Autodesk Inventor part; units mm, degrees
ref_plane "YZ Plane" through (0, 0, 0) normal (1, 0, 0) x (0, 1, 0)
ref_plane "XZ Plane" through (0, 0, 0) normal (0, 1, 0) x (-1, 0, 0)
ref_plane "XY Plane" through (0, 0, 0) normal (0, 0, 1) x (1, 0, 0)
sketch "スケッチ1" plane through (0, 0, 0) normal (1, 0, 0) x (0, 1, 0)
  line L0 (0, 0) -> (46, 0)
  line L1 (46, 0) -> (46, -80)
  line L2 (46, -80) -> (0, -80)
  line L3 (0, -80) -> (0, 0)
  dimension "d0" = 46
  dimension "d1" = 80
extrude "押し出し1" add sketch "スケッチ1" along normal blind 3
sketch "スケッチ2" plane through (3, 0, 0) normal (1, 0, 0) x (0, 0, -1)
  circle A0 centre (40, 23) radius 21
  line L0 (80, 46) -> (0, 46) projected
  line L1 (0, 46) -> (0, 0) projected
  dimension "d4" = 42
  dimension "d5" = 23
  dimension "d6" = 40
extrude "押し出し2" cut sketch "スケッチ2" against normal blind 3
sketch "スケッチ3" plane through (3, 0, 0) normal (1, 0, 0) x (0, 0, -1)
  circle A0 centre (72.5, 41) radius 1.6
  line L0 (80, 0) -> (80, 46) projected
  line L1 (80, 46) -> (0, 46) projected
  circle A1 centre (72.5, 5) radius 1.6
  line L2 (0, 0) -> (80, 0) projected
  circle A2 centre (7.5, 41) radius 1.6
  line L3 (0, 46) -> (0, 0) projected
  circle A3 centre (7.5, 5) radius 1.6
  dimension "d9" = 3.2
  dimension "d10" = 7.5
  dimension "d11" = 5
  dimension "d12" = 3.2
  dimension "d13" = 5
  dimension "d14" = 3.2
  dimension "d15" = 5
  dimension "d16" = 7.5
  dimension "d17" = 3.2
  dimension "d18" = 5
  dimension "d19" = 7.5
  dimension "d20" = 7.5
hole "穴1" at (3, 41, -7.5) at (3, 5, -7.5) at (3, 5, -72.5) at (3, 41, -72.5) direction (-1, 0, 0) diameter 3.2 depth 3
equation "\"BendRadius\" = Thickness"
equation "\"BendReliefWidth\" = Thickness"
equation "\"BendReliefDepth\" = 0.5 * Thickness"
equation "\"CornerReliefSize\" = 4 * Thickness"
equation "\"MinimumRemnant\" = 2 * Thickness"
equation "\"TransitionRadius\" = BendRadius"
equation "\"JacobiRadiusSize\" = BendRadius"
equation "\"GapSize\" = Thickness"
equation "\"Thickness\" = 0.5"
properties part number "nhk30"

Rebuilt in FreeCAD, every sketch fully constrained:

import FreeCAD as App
import Part
import Sketcher

V = App.Vector

doc = App.newDocument("Part")
body = doc.addObject("PartDesign::Body", "Body")

sketch1 = body.newObject("Sketcher::SketchObject", "Sketch")
sketch1.AttachmentSupport = (doc.getObject("YZ_Plane"), [""])
sketch1.MapMode = "FlatFace"
sketch1.addGeometry([
    Part.LineSegment(V(46, 0, 0), V(0, 0, 0)),
    Part.LineSegment(V(0, 0, 0), V(0, -80, 0)),
    Part.LineSegment(V(0, -80, 0), V(46, -80, 0)),
    Part.LineSegment(V(46, -80, 0), V(46, 0, 0)),
], False)
sketch1.addConstraint([
    Sketcher.Constraint("Coincident", 0, 2, 1, 1),
    Sketcher.Constraint("Coincident", 1, 2, 2, 1),
    Sketcher.Constraint("Coincident", 2, 2, 3, 1),
    Sketcher.Constraint("Coincident", 3, 2, 0, 1),
    Sketcher.Constraint("Horizontal", 0),
    Sketcher.Constraint("Vertical", 1),
    Sketcher.Constraint("Horizontal", 2),
    Sketcher.Constraint("Vertical", 3),
    Sketcher.Constraint("Coincident", 0, 2, -1, 1),
    Sketcher.Constraint("DistanceX", 0, 2, 0, 1, 46.0),
    Sketcher.Constraint("DistanceY", 1, 2, 1, 1, 80.0),
])
pad1 = body.newObject("PartDesign::Pad", "Pad")
pad1.Profile = sketch1
pad1.Length = 3

sketch2 = body.newObject("Sketcher::SketchObject", "Sketch001")
sketch2.AttachmentSupport = (doc.getObject("YZ_Plane"), [""])
sketch2.MapMode = "FlatFace"
sketch2.AttachmentOffset = App.Placement(V(0, 0, 3), App.Rotation())
sketch2.addGeometry(Part.Circle(V(23, -40, 0), V(0, 0, 1), 21), False)
sketch2.addConstraint([
    Sketcher.Constraint("Diameter", 0, 42.0),
    Sketcher.Constraint("DistanceX", -1, 1, 0, 3, 23.0),
    Sketcher.Constraint("DistanceY", 0, 3, -1, 1, 40.0),
])
pocket1 = body.newObject("PartDesign::Pocket", "Pocket")
pocket1.Profile = sketch2
pocket1.Length = 3

sketch3 = body.newObject("Sketcher::SketchObject", "Sketch002")
sketch3.AttachmentSupport = (doc.getObject("YZ_Plane"), [""])
sketch3.MapMode = "FlatFace"
sketch3.AttachmentOffset = App.Placement(V(0, 0, 3), App.Rotation())
sketch3.addGeometry([
    Part.Circle(V(41, -7.5, 0), V(0, 0, 1), 1.6),
    Part.Circle(V(5, -7.5, 0), V(0, 0, 1), 1.6),
    Part.Circle(V(5, -72.5, 0), V(0, 0, 1), 1.6),
    Part.Circle(V(41, -72.5, 0), V(0, 0, 1), 1.6),
], False)
sketch3.addConstraint([
    Sketcher.Constraint("Equal", 0, 1),
    Sketcher.Constraint("Equal", 1, 2),
    Sketcher.Constraint("Equal", 2, 3),
    Sketcher.Constraint("Horizontal", 0, 3, 1, 3),
    Sketcher.Constraint("Horizontal", 2, 3, 3, 3),
    Sketcher.Constraint("Vertical", 1, 3, 2, 3),
    Sketcher.Constraint("Vertical", 0, 3, 3, 3),
    Sketcher.Constraint("Diameter", 0, 3.2),
    Sketcher.Constraint("DistanceX", -1, 1, 0, 3, 41.0),
    Sketcher.Constraint("DistanceX", -1, 1, 1, 3, 5.0),
    Sketcher.Constraint("DistanceY", 2, 3, 1, 3, 65.0),
    Sketcher.Constraint("DistanceY", 0, 3, -1, 1, 7.5),
])
doc.recompute()
hole = body.newObject("PartDesign::Hole", "Hole")
hole.Profile = sketch3
hole.ThreadType = "None"
hole.Diameter = 3.2
hole.DepthType = "Dimension"
hole.Depth = 3
hole.DrillPoint = "Flat"

doc.recompute()
